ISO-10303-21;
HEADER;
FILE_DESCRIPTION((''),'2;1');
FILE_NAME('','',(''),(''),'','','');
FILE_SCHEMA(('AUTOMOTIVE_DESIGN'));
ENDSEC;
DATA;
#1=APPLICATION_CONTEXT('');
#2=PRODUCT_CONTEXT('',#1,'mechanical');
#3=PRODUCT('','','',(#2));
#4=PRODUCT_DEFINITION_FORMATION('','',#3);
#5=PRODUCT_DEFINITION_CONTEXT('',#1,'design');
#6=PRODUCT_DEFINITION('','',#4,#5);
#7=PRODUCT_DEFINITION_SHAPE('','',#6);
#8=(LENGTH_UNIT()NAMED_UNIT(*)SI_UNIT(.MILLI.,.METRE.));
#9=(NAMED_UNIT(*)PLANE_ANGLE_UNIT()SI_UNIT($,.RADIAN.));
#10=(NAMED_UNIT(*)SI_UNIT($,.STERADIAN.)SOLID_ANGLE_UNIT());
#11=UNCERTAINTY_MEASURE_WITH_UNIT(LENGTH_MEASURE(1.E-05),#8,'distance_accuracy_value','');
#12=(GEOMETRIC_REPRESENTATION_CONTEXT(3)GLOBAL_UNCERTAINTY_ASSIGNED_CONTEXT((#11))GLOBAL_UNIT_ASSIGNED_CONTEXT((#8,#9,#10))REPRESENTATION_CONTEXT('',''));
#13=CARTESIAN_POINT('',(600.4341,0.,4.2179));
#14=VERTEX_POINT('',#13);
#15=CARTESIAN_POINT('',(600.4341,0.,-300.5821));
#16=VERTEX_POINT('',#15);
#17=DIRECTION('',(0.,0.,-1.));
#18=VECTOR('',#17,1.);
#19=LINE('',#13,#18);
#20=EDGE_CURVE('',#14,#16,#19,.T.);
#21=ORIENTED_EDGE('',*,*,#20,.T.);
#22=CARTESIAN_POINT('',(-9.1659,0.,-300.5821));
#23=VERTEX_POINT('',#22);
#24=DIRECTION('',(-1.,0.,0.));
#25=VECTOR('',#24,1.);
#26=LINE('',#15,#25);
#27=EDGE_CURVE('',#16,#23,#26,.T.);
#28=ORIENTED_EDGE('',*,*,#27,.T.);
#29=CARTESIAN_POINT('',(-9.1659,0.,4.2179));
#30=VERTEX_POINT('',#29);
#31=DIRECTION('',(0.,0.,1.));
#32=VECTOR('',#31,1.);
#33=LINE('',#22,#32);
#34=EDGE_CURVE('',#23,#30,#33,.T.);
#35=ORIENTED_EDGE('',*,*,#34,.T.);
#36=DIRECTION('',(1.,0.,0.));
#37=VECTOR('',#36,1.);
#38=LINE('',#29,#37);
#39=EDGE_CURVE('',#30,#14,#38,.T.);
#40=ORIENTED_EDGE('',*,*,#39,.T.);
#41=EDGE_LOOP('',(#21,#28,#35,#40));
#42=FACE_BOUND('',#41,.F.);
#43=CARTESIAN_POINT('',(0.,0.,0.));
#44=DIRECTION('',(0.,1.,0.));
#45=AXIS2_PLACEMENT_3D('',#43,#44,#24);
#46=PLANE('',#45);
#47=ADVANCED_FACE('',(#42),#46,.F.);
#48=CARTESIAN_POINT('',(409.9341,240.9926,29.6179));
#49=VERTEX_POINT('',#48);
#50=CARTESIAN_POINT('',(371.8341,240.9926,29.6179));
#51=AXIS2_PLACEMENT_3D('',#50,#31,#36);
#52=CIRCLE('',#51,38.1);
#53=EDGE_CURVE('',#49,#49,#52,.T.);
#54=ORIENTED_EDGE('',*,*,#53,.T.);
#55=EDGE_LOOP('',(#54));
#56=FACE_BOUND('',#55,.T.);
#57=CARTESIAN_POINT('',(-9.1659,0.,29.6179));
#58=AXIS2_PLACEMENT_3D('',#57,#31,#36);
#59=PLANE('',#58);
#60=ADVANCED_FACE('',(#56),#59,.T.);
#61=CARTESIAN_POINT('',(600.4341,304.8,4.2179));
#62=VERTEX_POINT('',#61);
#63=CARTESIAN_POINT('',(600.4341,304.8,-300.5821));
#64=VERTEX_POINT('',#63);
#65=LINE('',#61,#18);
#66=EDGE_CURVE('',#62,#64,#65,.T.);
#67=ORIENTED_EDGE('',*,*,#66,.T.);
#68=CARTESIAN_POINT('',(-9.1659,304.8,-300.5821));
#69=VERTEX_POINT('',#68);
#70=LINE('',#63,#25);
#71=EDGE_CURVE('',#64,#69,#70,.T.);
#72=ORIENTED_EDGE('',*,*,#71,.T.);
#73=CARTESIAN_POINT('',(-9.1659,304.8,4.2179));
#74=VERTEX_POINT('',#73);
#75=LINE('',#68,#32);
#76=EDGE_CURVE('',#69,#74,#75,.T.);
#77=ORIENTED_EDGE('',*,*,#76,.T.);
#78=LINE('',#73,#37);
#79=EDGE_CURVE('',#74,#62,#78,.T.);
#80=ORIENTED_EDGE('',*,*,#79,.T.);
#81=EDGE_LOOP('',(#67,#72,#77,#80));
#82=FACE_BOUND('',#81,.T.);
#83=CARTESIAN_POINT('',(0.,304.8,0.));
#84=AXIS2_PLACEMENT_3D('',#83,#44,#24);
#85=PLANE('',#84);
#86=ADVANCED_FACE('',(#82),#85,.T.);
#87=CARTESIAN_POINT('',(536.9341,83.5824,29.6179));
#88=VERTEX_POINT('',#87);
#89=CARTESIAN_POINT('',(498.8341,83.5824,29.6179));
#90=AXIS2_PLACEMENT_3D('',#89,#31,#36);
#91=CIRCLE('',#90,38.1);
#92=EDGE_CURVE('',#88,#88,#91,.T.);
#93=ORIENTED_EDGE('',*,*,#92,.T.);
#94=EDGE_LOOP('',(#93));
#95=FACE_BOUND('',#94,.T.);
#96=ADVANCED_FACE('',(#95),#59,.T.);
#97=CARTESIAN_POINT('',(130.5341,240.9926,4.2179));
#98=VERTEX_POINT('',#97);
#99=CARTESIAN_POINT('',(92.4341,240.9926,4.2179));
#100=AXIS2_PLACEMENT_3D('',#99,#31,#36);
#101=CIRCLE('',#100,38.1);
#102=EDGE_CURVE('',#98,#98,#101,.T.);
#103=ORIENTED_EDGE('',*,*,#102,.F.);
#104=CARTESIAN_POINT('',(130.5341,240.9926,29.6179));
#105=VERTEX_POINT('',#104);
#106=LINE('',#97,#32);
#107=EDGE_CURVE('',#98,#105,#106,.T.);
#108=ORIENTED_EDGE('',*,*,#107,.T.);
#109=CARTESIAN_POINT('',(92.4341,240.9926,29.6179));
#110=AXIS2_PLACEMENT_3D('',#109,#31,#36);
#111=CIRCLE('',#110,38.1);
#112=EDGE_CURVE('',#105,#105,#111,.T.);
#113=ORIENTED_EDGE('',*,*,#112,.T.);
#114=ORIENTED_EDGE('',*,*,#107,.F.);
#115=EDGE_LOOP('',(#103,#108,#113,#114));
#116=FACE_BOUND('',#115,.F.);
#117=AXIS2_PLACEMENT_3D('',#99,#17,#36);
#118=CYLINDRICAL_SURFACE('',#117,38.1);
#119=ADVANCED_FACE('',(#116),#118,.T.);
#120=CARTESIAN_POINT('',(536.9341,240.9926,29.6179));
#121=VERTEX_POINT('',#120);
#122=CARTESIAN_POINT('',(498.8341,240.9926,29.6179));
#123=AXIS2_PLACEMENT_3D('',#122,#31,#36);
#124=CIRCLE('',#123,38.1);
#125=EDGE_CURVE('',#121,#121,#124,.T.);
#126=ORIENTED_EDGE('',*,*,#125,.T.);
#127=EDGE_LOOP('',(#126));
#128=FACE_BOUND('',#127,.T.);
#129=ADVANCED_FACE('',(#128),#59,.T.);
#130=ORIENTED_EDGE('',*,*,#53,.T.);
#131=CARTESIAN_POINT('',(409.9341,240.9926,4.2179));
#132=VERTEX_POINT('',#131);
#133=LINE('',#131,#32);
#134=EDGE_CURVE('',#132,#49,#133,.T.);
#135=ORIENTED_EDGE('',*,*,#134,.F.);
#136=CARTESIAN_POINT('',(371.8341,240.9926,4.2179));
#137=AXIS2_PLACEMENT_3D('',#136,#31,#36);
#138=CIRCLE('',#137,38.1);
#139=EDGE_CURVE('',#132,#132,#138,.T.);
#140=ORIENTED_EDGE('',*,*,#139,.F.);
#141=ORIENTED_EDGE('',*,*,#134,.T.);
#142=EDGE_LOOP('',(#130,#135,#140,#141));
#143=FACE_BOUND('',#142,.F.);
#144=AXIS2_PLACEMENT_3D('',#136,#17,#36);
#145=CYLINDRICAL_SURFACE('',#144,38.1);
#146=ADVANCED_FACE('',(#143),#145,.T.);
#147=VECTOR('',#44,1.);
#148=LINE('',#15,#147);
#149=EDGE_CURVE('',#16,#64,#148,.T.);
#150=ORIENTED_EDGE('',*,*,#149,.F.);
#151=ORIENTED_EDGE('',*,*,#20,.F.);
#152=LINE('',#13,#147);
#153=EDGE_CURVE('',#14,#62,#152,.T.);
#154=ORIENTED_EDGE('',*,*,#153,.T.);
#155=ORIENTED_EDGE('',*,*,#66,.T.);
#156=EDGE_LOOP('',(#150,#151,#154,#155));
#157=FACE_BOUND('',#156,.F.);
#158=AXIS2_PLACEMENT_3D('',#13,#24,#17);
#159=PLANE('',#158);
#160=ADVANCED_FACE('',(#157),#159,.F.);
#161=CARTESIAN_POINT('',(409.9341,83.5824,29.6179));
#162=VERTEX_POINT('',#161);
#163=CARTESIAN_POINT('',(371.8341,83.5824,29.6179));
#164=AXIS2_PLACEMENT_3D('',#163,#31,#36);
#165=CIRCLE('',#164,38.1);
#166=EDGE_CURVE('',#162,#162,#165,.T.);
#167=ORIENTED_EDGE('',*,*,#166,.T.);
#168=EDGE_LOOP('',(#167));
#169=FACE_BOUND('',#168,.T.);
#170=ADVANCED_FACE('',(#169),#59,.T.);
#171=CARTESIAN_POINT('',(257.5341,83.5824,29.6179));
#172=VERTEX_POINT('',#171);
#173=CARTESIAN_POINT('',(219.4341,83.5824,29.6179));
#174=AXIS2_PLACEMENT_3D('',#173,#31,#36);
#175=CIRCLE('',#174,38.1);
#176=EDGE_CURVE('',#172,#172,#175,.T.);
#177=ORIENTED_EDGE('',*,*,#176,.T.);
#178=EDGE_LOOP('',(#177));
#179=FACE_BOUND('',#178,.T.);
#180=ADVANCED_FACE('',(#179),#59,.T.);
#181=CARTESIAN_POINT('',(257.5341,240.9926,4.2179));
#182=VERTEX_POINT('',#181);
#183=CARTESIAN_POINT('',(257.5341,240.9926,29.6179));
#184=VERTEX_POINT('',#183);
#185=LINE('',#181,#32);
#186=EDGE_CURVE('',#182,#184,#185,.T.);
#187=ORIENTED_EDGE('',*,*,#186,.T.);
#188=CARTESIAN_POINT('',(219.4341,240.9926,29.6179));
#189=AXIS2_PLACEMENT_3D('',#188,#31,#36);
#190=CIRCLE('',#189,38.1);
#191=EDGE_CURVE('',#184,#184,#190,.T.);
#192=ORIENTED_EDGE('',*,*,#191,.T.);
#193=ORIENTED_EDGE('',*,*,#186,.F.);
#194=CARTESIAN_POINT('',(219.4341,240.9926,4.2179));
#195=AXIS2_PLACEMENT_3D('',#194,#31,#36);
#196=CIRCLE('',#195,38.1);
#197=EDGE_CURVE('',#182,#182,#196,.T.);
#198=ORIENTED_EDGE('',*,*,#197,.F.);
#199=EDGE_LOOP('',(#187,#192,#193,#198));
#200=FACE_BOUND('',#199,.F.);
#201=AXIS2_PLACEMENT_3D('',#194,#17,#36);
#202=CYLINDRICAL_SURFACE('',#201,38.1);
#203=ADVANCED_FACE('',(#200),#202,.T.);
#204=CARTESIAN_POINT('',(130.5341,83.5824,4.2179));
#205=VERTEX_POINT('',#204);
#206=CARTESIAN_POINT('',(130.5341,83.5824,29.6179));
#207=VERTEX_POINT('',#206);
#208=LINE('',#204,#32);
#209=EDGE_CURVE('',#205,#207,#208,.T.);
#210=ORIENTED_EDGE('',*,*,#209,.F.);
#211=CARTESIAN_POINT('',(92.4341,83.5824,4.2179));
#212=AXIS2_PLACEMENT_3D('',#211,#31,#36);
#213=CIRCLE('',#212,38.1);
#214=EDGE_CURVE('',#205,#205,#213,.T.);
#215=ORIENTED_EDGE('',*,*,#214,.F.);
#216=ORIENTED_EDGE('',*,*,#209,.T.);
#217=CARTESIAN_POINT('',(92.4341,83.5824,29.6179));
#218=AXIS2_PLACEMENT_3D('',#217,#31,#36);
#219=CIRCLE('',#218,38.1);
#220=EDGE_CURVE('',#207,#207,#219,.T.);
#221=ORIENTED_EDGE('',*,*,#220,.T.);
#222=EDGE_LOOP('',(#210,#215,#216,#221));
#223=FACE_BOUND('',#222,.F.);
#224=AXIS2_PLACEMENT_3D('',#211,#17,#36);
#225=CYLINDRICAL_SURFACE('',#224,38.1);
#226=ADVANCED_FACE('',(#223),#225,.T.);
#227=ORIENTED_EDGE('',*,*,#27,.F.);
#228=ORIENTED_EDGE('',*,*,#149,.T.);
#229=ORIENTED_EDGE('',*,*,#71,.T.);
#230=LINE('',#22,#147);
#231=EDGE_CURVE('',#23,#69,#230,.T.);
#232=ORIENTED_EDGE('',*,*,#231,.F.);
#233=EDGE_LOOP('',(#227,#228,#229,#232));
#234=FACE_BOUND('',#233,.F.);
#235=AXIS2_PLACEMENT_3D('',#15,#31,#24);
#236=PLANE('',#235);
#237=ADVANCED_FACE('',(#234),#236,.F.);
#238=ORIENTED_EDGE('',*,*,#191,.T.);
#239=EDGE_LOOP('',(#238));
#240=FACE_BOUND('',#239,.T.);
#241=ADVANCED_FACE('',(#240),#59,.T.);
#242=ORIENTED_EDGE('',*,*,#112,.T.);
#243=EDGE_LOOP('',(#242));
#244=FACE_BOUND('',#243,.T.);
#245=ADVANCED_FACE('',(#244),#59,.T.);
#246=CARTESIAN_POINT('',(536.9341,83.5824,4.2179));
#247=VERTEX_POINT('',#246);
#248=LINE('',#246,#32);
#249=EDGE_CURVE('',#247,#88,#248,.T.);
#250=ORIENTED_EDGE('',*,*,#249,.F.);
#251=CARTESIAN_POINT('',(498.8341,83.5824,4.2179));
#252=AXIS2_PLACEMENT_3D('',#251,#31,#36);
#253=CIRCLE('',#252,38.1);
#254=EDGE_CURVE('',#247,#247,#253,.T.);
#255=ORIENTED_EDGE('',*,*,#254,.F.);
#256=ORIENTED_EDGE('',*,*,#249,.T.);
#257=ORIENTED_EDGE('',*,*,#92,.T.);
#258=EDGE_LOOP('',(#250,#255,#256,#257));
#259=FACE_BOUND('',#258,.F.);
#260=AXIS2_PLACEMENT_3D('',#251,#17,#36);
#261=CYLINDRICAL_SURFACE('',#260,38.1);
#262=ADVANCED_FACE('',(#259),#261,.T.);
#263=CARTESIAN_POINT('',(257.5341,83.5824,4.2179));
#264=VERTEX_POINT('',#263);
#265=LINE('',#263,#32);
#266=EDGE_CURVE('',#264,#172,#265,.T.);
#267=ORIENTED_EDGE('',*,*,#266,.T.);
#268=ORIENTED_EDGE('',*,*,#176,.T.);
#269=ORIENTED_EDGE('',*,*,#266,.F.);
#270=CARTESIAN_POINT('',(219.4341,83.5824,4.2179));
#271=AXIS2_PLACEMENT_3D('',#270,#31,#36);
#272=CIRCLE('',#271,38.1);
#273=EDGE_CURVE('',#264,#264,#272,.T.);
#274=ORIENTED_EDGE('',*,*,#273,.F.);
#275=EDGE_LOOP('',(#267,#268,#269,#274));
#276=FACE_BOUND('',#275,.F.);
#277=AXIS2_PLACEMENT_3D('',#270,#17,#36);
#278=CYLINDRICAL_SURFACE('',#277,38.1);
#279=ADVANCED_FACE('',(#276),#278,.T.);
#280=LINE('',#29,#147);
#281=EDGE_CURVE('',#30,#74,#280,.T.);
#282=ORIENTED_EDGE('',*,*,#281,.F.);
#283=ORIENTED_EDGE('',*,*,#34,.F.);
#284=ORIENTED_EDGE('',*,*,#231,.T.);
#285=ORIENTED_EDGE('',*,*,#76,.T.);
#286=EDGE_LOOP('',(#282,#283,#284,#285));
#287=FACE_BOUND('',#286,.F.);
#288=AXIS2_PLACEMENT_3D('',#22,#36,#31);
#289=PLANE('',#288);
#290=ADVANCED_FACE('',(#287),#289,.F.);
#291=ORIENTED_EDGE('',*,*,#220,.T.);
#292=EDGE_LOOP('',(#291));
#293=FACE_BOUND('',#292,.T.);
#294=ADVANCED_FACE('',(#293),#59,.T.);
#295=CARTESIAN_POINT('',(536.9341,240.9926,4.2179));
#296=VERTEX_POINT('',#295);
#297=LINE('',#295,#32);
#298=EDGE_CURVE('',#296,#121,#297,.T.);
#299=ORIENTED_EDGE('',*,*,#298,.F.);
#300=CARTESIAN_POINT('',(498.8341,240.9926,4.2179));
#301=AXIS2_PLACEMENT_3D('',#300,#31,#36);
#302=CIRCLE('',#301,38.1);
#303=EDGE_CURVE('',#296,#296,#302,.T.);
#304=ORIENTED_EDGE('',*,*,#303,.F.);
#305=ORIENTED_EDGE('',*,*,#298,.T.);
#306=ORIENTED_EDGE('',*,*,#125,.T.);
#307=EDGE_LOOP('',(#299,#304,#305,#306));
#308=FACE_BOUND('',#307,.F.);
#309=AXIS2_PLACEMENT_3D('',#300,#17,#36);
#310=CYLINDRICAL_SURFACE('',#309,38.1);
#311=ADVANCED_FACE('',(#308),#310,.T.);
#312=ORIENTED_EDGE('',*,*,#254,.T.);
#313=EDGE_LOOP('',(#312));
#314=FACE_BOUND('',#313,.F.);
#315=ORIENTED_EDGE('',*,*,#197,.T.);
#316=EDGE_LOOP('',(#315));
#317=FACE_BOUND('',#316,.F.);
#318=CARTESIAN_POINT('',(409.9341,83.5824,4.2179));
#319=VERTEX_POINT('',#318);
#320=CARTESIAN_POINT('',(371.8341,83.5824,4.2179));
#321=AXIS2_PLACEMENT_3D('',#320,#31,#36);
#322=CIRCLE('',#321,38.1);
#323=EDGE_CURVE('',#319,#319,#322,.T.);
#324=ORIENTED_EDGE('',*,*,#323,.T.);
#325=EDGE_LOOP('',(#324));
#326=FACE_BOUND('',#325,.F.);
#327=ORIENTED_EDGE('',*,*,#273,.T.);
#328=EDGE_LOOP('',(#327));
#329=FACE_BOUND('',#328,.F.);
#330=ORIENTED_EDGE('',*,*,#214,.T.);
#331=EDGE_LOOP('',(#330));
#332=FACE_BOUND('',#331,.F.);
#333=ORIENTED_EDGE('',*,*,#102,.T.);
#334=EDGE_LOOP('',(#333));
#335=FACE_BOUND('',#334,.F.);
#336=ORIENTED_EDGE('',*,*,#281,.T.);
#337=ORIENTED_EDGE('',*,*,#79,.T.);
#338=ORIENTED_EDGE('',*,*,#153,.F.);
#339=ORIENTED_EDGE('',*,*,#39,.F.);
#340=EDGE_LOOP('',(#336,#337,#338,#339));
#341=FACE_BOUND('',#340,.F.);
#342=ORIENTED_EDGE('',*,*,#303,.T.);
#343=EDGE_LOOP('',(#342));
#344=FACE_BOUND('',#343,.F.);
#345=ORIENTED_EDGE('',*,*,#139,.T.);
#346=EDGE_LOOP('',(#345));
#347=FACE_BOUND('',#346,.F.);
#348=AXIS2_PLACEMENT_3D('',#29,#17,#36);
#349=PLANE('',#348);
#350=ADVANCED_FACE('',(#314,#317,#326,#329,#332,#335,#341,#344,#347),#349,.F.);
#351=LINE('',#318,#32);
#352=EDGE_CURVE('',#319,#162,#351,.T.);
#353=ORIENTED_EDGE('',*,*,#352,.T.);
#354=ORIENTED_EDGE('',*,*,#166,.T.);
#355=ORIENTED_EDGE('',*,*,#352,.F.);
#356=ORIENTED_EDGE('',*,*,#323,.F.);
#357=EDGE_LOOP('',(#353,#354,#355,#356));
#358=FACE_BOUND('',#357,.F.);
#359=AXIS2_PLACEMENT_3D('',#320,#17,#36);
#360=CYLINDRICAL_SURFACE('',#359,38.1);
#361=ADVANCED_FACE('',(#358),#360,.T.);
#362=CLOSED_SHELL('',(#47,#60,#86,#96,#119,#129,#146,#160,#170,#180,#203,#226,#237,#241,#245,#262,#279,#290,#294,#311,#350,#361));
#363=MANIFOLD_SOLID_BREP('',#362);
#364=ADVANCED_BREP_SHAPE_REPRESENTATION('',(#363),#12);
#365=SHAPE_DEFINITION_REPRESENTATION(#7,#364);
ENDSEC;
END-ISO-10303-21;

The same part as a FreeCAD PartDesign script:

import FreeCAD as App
import Part
import Sketcher

V = App.Vector
Q = App.Units.Quantity


def add_polygon(sketch, points):
    """Adds a closed chain of lines whose ends are joined by coincident constraints."""
    first, n = sketch.GeometryCount, len(points)
    for a, b in zip(points, points[1:] + points[:1]):
        sketch.addGeometry(Part.LineSegment(App.Vector(*a, 0), App.Vector(*b, 0)), False)
    for i in range(n):
        sketch.addConstraint(Sketcher.Constraint("Coincident", first + i, 2, first + (i + 1) % n, 1))

doc = App.newDocument("Part")
params = doc.addObject("Spreadsheet::Sheet", "Params")
for row, (alias, value) in enumerate([
    ("sketch1_width", "24 in"),
    ("sketch1_height", "12 in"),
    ("pad1_length", "12 in"),
    ("sketch2_diameter", "3 in"),
    ("pad2_length", "1 in"),
], start=1):
    params.set(f"A{row}", alias)
    params.set(f"B{row}", "=" + value)
    params.setAlias(f"B{row}", alias)

body = doc.addObject("PartDesign::Body", "Body")

sketch1 = body.newObject("Sketcher::SketchObject", "Sketch")
sketch1.AttachmentSupport = (doc.getObject("XZ_Plane"), [""])
sketch1.MapMode = "FlatFace"
add_polygon(sketch1, [(-9, -301), (-9, 4), (600, 4), (600, -301)])
sketch1.addConstraint(Sketcher.Constraint("Vertical", 0))
sketch1.addConstraint(Sketcher.Constraint("Horizontal", 1))
sketch1.addConstraint(Sketcher.Constraint("Vertical", 2))
sketch1.addConstraint(Sketcher.Constraint("Horizontal", 3))
sketch1.addConstraint(Sketcher.Constraint("DistanceX", 1, 1, 1, 2, Q("24 in")))
sketch1.addConstraint(Sketcher.Constraint("DistanceY", 0, 1, 0, 2, Q("12 in")))
sketch1.addConstraint(Sketcher.Constraint("DistanceX", 0, 2, -1, 1, Q("9.166 mm")))
sketch1.addConstraint(Sketcher.Constraint("DistanceY", -1, 1, 0, 2, Q("4.218 mm")))
sketch1.setExpression("Constraints[8]", "Params.sketch1_width")
sketch1.setExpression("Constraints[9]", "Params.sketch1_height")
pad1 = body.newObject("PartDesign::Pad", "Pad")
pad1.Profile = sketch1
pad1.setExpression("Length", "Params.pad1_length")
pad1.Reversed = True

sketch2 = body.newObject("Sketcher::SketchObject", "Sketch001")
sketch2.AttachmentSupport = (doc.getObject("XY_Plane"), [""])
sketch2.MapMode = "FlatFace"
sketch2.AttachmentOffset = App.Placement(V(0, 0, 4.2179), App.Rotation())
sketch2.addGeometry(Part.Circle(V(92, 84, 0), V(0, 0, 1), 38), False)
sketch2.addGeometry(Part.Circle(V(219, 84, 0), V(0, 0, 1), 38), False)
sketch2.addGeometry(Part.Circle(V(372, 84, 0), V(0, 0, 1), 38), False)
sketch2.addGeometry(Part.Circle(V(499, 84, 0), V(0, 0, 1), 38), False)
sketch2.addGeometry(Part.Circle(V(499, 241, 0), V(0, 0, 1), 38), False)
sketch2.addGeometry(Part.Circle(V(372, 241, 0), V(0, 0, 1), 38), False)
sketch2.addGeometry(Part.Circle(V(219, 241, 0), V(0, 0, 1), 38), False)
sketch2.addGeometry(Part.Circle(V(92, 241, 0), V(0, 0, 1), 38), False)
sketch2.addConstraint(Sketcher.Constraint("Equal", 0, 1))
sketch2.addConstraint(Sketcher.Constraint("Equal", 1, 2))
sketch2.addConstraint(Sketcher.Constraint("Equal", 2, 3))
sketch2.addConstraint(Sketcher.Constraint("Equal", 3, 4))
sketch2.addConstraint(Sketcher.Constraint("Equal", 4, 5))
sketch2.addConstraint(Sketcher.Constraint("Equal", 5, 6))
sketch2.addConstraint(Sketcher.Constraint("Equal", 6, 7))
sketch2.addConstraint(Sketcher.Constraint("Horizontal", 0, 3, 1, 3))
sketch2.addConstraint(Sketcher.Constraint("Horizontal", 1, 3, 2, 3))
sketch2.addConstraint(Sketcher.Constraint("Horizontal", 2, 3, 3, 3))
sketch2.addConstraint(Sketcher.Constraint("Horizontal", 4, 3, 5, 3))
sketch2.addConstraint(Sketcher.Constraint("Horizontal", 5, 3, 6, 3))
sketch2.addConstraint(Sketcher.Constraint("Horizontal", 6, 3, 7, 3))
sketch2.addConstraint(Sketcher.Constraint("Vertical", 3, 3, 4, 3))
sketch2.addConstraint(Sketcher.Constraint("Vertical", 2, 3, 5, 3))
sketch2.addConstraint(Sketcher.Constraint("Vertical", 1, 3, 6, 3))
sketch2.addConstraint(Sketcher.Constraint("Vertical", 0, 3, 7, 3))
sketch2.addConstraint(Sketcher.Constraint("Diameter", 0, Q("3 in")))
sketch2.addConstraint(Sketcher.Constraint("DistanceX", 0, 3, 1, 3, Q("5 in")))
sketch2.addConstraint(Sketcher.Constraint("DistanceX", 2, 3, 3, 3, Q("5 in")))
sketch2.addConstraint(Sketcher.Constraint("DistanceX", 1, 3, 2, 3, Q("6 in")))
sketch2.addConstraint(Sketcher.Constraint("DistanceY", -1, 1, 4, 3, Q("9.4879 in")))
sketch2.addConstraint(Sketcher.Constraint("DistanceX", -1, 1, 0, 3, Q("92.434 mm")))
sketch2.addConstraint(Sketcher.Constraint("DistanceY", -1, 1, 0, 3, Q("83.5824 mm")))
sketch2.setExpression("Constraints[17]", "Params.sketch2_diameter")
pad2 = body.newObject("PartDesign::Pad", "Pad001")
pad2.Profile = sketch2
pad2.setExpression("Length", "Params.pad2_length")

doc.recompute()
